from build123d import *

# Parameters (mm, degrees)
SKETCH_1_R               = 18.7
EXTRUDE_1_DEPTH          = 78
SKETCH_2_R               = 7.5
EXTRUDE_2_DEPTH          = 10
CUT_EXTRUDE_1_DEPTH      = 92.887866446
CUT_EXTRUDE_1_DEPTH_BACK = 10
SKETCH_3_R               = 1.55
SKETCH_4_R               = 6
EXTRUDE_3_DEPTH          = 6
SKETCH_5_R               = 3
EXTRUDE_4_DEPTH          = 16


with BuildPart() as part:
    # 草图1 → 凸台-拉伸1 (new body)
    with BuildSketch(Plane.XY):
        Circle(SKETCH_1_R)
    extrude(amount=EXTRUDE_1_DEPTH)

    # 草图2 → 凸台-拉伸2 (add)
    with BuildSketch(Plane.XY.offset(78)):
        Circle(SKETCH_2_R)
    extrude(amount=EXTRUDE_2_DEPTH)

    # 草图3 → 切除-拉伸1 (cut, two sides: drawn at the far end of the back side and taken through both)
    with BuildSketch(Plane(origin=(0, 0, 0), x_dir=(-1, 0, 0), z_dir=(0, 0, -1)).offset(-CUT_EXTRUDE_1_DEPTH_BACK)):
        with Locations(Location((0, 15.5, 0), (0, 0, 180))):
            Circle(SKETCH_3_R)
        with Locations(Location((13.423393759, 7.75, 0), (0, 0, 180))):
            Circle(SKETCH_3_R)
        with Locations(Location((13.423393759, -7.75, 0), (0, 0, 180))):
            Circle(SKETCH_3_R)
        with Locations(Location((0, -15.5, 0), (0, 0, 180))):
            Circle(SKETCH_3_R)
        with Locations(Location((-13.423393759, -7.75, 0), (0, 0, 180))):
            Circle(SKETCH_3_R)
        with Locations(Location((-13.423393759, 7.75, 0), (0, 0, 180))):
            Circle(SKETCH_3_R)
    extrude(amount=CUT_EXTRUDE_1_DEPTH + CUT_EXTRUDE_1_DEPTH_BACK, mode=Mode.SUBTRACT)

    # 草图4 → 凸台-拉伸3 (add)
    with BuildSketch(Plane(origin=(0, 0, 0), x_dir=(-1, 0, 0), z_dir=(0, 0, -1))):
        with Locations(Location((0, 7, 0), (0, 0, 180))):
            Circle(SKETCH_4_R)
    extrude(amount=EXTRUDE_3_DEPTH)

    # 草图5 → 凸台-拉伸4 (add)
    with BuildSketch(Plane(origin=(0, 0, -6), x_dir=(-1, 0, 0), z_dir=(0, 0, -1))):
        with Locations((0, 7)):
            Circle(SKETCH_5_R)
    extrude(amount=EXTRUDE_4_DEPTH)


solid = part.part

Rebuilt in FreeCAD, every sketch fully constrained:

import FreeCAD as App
import Part
import Sketcher

V = App.Vector

doc = App.newDocument("Part")
params = doc.addObject("Spreadsheet::Sheet", "Params")
for row, (alias, value) in enumerate([
    ("sketch1_diameter", "37.4 mm"),
    ("pad1_length", "78 mm"),
    ("sketch2_diameter", "15 mm"),
    ("pad2_length", "10 mm"),
    ("sketch3_diameter", "3.1 mm"),
    ("pocket1_length", "92.887866 mm"),
    ("pocket1_length2", "10 mm"),
    ("sketch4_diameter", "12 mm"),
    ("pad3_length", "6 mm"),
    ("sketch5_diameter", "6 mm"),
    ("pad4_length", "16 mm"),
], start=1):
    params.set(f"A{row}", alias)
    params.set(f"B{row}", "=" + value)
    params.setAlias(f"B{row}", alias)

body = doc.addObject("PartDesign::Body", "Body")

# Sketch on XY plane
sketch1 = body.newObject("Sketcher::SketchObject", "Sketch")
sketch1.AttachmentSupport = (doc.getObject("XY_Plane"), [""])
sketch1.MapMode = "FlatFace"
sketch1.addGeometry(Part.Circle(V(0, 0, 0), V(0, 0, 1), 19), False)
sketch1.addConstraint([
    Sketcher.Constraint("Coincident", 0, 3, -1, 1),
    Sketcher.Constraint("Diameter", 0, 37.4),
])
sketch1.setExpression("Constraints[1]", "Params.sketch1_diameter")
pad1 = body.newObject("PartDesign::Pad", "Pad")
pad1.Profile = sketch1
pad1.setExpression("Length", "Params.pad1_length")

# Sketch on XY plane
sketch2 = body.newObject("Sketcher::SketchObject", "Sketch001")
sketch2.AttachmentSupport = (doc.getObject("XY_Plane"), [""])
sketch2.MapMode = "FlatFace"
sketch2.AttachmentOffset = App.Placement(V(0, 0, 78), App.Rotation())
sketch2.addGeometry(Part.Circle(V(0, 0, 0), V(0, 0, 1), 8), False)
sketch2.addConstraint([
    Sketcher.Constraint("Coincident", 0, 3, -1, 1),
    Sketcher.Constraint("Diameter", 0, 15.0),
])
sketch2.setExpression("Constraints[1]", "Params.sketch2_diameter")
pad2 = body.newObject("PartDesign::Pad", "Pad001")
pad2.Profile = sketch2
pad2.setExpression("Length", "Params.pad2_length")

# Sketch on XY plane
sketch3 = body.newObject("Sketcher::SketchObject", "Sketch002")
sketch3.AttachmentSupport = (doc.getObject("XY_Plane"), [""])
sketch3.MapMode = "FlatFace"
sketch3.addGeometry([
    Part.Circle(V(0, 15.5, 0), V(0, 0, 1), 1.6),  # 0
    Part.Circle(V(-13.4, 7.8, 0), V(0, 0, 1), 1.6),  # 1
    Part.Circle(V(-13.4, -7.8, 0), V(0, 0, 1), 1.6),  # 2
    Part.Circle(V(0, -15.5, 0), V(0, 0, 1), 1.6),  # 3
    Part.Circle(V(13.4, -7.8, 0), V(0, 0, 1), 1.6),  # 4
    Part.Circle(V(13.4, 7.8, 0), V(0, 0, 1), 1.6),  # 5
], False)
sketch3.addConstraint([
    Sketcher.Constraint("Equal", 0, 1),
    Sketcher.Constraint("Equal", 1, 2),
    Sketcher.Constraint("Equal", 2, 3),
    Sketcher.Constraint("Equal", 3, 4),
    Sketcher.Constraint("Equal", 4, 5),
    Sketcher.Constraint("Symmetric", 0, 3, 3, 3, -1, 1),
    Sketcher.Constraint("Symmetric", 1, 3, 4, 3, -1, 1),
    Sketcher.Constraint("Symmetric", 2, 3, 5, 3, -1, 1),
    Sketcher.Constraint("Symmetric", 2, 3, 4, 3, -2),
    Sketcher.Constraint("PointOnObject", 0, 3, -2),
    Sketcher.Constraint("Diameter", 0, 3.1),
    Sketcher.Constraint("DistanceY", 3, 3, 0, 3, 31.0),
    Sketcher.Constraint("DistanceY", 2, 3, 1, 3, 15.5),
    Sketcher.Constraint("DistanceX", 1, 3, -1, 1, 13.423394),
])
sketch3.setExpression("Constraints[10]", "Params.sketch3_diameter")
pocket1 = body.newObject("PartDesign::Pocket", "Pocket")
pocket1.Profile = sketch3
pocket1.Type = "TwoLengths"
pocket1.setExpression("Length", "Params.pocket1_length")
pocket1.setExpression("Length2", "Params.pocket1_length2")

# Sketch on XY plane
sketch4 = body.newObject("Sketcher::SketchObject", "Sketch003")
sketch4.AttachmentSupport = (doc.getObject("XY_Plane"), [""])
sketch4.MapMode = "FlatFace"
sketch4.addGeometry(Part.Circle(V(0, 7, 0), V(0, 0, 1), 6), False)
sketch4.addConstraint([
    Sketcher.Constraint("PointOnObject", 0, 3, -2),
    Sketcher.Constraint("Diameter", 0, 12.0),
    Sketcher.Constraint("DistanceY", -1, 1, 0, 3, 7.0),
])
sketch4.setExpression("Constraints[1]", "Params.sketch4_diameter")
pad3 = body.newObject("PartDesign::Pad", "Pad002")
pad3.Profile = sketch4
pad3.setExpression("Length", "Params.pad3_length")
pad3.Reversed = True

# Sketch on XY plane
sketch5 = body.newObject("Sketcher::SketchObject", "Sketch004")
sketch5.AttachmentSupport = (doc.getObject("XY_Plane"), [""])
sketch5.MapMode = "FlatFace"
sketch5.AttachmentOffset = App.Placement(V(0, 0, -6), App.Rotation())
sketch5.addGeometry(Part.Circle(V(0, 7, 0), V(0, 0, 1), 3), False)
sketch5.addConstraint([
    Sketcher.Constraint("PointOnObject", 0, 3, -2),
    Sketcher.Constraint("Diameter", 0, 6.0),
    Sketcher.Constraint("DistanceY", -1, 1, 0, 3, 7.0),
])
sketch5.setExpression("Constraints[1]", "Params.sketch5_diameter")
pad4 = body.newObject("PartDesign::Pad", "Pad003")
pad4.Profile = sketch5
pad4.setExpression("Length", "Params.pad4_length")
pad4.Reversed = True

doc.recompute()
